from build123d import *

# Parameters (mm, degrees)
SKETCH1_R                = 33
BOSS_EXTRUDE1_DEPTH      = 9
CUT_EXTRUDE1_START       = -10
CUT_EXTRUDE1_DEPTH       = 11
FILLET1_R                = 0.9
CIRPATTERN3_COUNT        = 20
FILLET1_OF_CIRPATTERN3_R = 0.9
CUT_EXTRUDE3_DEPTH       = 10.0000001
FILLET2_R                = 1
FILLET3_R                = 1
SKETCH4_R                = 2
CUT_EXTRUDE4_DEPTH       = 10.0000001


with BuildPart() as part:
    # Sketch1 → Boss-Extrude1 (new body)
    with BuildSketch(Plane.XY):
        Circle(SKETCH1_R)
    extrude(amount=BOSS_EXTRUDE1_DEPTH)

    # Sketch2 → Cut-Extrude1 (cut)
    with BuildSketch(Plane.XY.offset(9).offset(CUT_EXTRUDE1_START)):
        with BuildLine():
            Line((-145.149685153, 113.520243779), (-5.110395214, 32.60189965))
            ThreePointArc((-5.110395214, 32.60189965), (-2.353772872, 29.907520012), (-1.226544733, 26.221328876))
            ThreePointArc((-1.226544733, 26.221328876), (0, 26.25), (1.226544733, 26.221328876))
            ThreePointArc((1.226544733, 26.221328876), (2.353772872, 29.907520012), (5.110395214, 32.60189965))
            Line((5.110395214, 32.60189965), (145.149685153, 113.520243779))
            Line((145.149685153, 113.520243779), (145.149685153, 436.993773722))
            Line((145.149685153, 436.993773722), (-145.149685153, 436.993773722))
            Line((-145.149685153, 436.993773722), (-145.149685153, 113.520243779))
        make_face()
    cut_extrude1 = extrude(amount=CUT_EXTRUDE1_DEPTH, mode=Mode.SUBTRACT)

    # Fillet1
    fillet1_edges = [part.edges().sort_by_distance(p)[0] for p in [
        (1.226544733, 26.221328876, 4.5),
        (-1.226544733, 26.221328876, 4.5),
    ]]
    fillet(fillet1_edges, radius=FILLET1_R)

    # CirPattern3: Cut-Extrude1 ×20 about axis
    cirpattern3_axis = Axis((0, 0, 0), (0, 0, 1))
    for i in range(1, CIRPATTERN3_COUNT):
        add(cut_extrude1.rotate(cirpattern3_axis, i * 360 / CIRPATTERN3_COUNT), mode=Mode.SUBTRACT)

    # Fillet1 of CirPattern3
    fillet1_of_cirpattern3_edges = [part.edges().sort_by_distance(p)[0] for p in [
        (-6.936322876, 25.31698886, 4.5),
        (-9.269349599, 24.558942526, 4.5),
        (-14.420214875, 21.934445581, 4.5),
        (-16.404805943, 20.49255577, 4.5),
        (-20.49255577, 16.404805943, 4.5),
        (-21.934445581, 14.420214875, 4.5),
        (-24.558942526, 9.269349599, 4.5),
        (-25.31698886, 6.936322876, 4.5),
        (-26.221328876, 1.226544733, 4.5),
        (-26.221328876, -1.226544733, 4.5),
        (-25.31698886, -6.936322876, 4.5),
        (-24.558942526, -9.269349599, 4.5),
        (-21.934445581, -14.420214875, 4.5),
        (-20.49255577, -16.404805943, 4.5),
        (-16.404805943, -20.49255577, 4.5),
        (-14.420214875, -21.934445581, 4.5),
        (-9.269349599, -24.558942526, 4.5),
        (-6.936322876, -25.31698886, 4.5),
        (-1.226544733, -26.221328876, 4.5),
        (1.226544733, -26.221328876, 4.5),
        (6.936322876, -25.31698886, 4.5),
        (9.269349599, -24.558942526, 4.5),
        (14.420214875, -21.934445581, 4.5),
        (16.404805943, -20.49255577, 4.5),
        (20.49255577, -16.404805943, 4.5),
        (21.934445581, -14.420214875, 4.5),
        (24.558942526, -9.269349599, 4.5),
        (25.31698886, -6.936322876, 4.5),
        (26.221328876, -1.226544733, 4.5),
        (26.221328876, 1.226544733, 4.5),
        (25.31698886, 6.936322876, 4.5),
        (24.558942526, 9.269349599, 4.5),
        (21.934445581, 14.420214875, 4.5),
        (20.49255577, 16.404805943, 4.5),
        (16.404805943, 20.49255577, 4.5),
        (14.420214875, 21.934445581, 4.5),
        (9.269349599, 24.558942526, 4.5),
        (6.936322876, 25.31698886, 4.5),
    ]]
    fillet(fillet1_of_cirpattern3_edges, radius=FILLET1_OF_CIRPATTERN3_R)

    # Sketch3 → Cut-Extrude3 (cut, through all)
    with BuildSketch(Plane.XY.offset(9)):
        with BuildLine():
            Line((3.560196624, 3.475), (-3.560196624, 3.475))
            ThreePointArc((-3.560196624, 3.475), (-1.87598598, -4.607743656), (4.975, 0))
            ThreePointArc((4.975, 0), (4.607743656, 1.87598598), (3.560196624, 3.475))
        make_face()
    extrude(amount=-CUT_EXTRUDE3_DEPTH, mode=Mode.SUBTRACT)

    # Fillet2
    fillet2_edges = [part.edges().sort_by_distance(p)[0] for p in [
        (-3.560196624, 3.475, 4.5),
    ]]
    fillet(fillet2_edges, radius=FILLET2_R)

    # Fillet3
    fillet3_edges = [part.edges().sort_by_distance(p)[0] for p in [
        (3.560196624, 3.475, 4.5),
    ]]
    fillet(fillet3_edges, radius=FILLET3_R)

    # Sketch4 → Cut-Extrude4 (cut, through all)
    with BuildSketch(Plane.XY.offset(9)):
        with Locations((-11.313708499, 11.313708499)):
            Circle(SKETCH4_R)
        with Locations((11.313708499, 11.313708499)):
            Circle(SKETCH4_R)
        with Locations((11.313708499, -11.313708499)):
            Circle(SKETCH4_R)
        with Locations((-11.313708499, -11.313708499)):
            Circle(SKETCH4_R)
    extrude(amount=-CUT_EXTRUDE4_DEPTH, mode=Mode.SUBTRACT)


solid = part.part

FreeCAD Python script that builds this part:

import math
import FreeCAD as App
import Part
import Sketcher

V = App.Vector
Q = App.Units.Quantity


def edges_at(feature, points):
    """Names of the edges that pass closest to the given points."""
    edges = feature.Shape.Edges
    near = lambda p: min(range(len(edges)), key=lambda i: edges[i].distToShape(Part.Vertex(*p))[0])
    return sorted({f"Edge{near(p) + 1}" for p in points})

doc = App.newDocument("Part")
body = doc.addObject("PartDesign::Body", "Body")

sketch1 = body.newObject("Sketcher::SketchObject", "Sketch")
sketch1.AttachmentSupport = (doc.getObject("XY_Plane"), [""])
sketch1.MapMode = "FlatFace"
sketch1.addGeometry(Part.Circle(V(0, 0, 0), V(0, 0, 1), 33), False)
sketch1.addConstraint([
    Sketcher.Constraint("Coincident", 0, 3, -1, 1),
    Sketcher.Constraint("Diameter", 0, Q("66 mm")),
])
pad1 = body.newObject("PartDesign::Pad", "Pad")
pad1.Profile = sketch1
pad1.Length = 9

sketch2 = body.newObject("Sketcher::SketchObject", "Sketch001")
sketch2.AttachmentSupport = (doc.getObject("XY_Plane"), [""])
sketch2.MapMode = "FlatFace"
sketch2.AttachmentOffset = App.Placement(V(0, 0, -1), App.Rotation())
sketch2.addGeometry([
    Part.LineSegment(V(-145.149685, 113.520244, 0), V(-5.110395, 32.6019, 0)),
    Part.ArcOfCircle(Part.Circle(V(-9.007566, 25.857359, 0), V(0, 0, 1), 7.789529), math.radians(2.67815), math.radians(59.979561)),
    Part.ArcOfCircle(Part.Circle(V(0, 0, 0), V(0, 0, 1), 26.25), math.radians(87.32185), math.radians(92.67815)),
    Part.ArcOfCircle(Part.Circle(V(9.007566, 25.857359, 0), V(0, 0, 1), 7.789529), math.radians(120.020439), math.radians(177.32185)),
    Part.LineSegment(V(5.110395, 32.6019, 0), V(145.149685, 113.520244, 0)),
    Part.LineSegment(V(145.149685, 113.520244, 0), V(145.149685, 436.993774, 0)),
    Part.LineSegment(V(145.149685, 436.993774, 0), V(-145.149685, 436.993774, 0)),
    Part.LineSegment(V(-145.149685, 436.993774, 0), V(-145.149685, 113.520244, 0)),
], False)
sketch2.addConstraint([
    Sketcher.Constraint("Coincident", 0, 2, 1, 2),
    Sketcher.Constraint("Coincident", 1, 1, 2, 2),
    Sketcher.Constraint("Coincident", 2, 1, 3, 2),
    Sketcher.Constraint("Coincident", 3, 1, 4, 1),
    Sketcher.Constraint("Coincident", 4, 2, 5, 1),
    Sketcher.Constraint("Coincident", 5, 2, 6, 1),
    Sketcher.Constraint("Coincident", 6, 2, 7, 1),
    Sketcher.Constraint("Coincident", 7, 2, 0, 1),
    Sketcher.Constraint("Vertical", 5),
    Sketcher.Constraint("Horizontal", 6),
    Sketcher.Constraint("Vertical", 7),
    Sketcher.Constraint("Coincident", 2, 3, -1, 1),
    Sketcher.Constraint("Radius", 2, Q("26.25 mm")),
    Sketcher.Constraint("Radius", 1, Q("7.789529 mm")),
    Sketcher.Constraint("Radius", 3, Q("7.789529 mm")),
    Sketcher.Constraint("DistanceX", 6, 2, 6, 1, Q("290.29937 mm")),
    Sketcher.Constraint("DistanceY", 5, 1, 5, 2, Q("323.47353 mm")),
    Sketcher.Constraint("DistanceY", 7, 2, 7, 1, Q("323.47353 mm")),
    Sketcher.Constraint("DistanceY", -1, 1, 0, 2, Q("32.6019 mm")),
    Sketcher.Constraint("DistanceY", -1, 1, 3, 1, Q("32.6019 mm")),
    Sketcher.Constraint("DistanceY", -1, 1, 1, 3, Q("25.857359 mm")),
    Sketcher.Constraint("DistanceY", -1, 1, 3, 3, Q("25.857359 mm")),
    Sketcher.Constraint("DistanceY", -1, 1, 1, 1, Q("26.221329 mm")),
    Sketcher.Constraint("DistanceY", -1, 1, 2, 1, Q("26.221329 mm")),
    Sketcher.Constraint("DistanceX", 3, 1, 4, 2, Q("140.03929 mm")),
    Sketcher.Constraint("Distance", 0, Q("161.736765 mm")),
])
pocket1 = body.newObject("PartDesign::Pocket", "Pocket")
pocket1.Profile = sketch2
pocket1.Length = 11
pocket1.Reversed = True
doc.recompute()

fillet = body.newObject("PartDesign::Fillet", "Fillet")
fillet.Base = (pocket1, edges_at(pocket1, [(1.227, 26.221, 4.5), (-1.227, 26.221, 4.5)]))
fillet.Radius = 0.9
doc.recompute()

polarpattern = body.newObject("PartDesign::PolarPattern", "PolarPattern")
polarpattern.Originals = [pocket1]
polarpattern.Axis = (doc.getObject("Z_Axis"), [""])
polarpattern.Angle = 360
polarpattern.Occurrences = 20
body.Tip = polarpattern
doc.recompute()

fillet2 = body.newObject("PartDesign::Fillet", "Fillet001")
fillet2.Base = (polarpattern, edges_at(polarpattern, [
    (-6.936, 25.317, 4.5),
    (-9.269, 24.559, 4.5),
    (-14.42, 21.934, 4.5),
    (-16.405, 20.493, 4.5),
    (-20.493, 16.405, 4.5),
    (-21.934, 14.42, 4.5),
    (-24.559, 9.269, 4.5),
    (-25.317, 6.936, 4.5),
    (-26.221, 1.227, 4.5),
    (-26.221, -1.227, 4.5),
    (-25.317, -6.936, 4.5),
    (-24.559, -9.269, 4.5),
    (-21.934, -14.42, 4.5),
    (-20.493, -16.405, 4.5),
    (-16.405, -20.493, 4.5),
    (-14.42, -21.934, 4.5),
    (-9.269, -24.559, 4.5),
    (-6.936, -25.317, 4.5),
    (-1.227, -26.221, 4.5),
    (1.227, -26.221, 4.5),
    (6.936, -25.317, 4.5),
    (9.269, -24.559, 4.5),
    (14.42, -21.934, 4.5),
    (16.405, -20.493, 4.5),
    (20.493, -16.405, 4.5),
    (21.934, -14.42, 4.5),
    (24.559, -9.269, 4.5),
    (25.317, -6.936, 4.5),
    (26.221, -1.227, 4.5),
    (26.221, 1.227, 4.5),
    (25.317, 6.936, 4.5),
    (24.559, 9.269, 4.5),
    (21.934, 14.42, 4.5),
    (20.493, 16.405, 4.5),
    (16.405, 20.493, 4.5),
    (14.42, 21.934, 4.5),
    (9.269, 24.559, 4.5),
    (6.936, 25.317, 4.5),
]))
fillet2.Radius = 0.9

sketch3 = body.newObject("Sketcher::SketchObject", "Sketch002")
sketch3.AttachmentSupport = (doc.getObject("XY_Plane"), [""])
sketch3.MapMode = "FlatFace"
sketch3.AttachmentOffset = App.Placement(V(0, 0, 9), App.Rotation())
sketch3.addGeometry([
    Part.LineSegment(V(3.6, 3.5, 0), V(-3.6, 3.5, 0)),
    Part.ArcOfCircle(Part.Circle(V(0, 0, 0), V(0, 0, 1), 5), math.radians(136), math.radians(360)),
    Part.ArcOfCircle(Part.Circle(V(0, 0, 0), V(0, 0, 1), 5), math.radians(0), math.radians(44)),
], False)
sketch3.addConstraint([
    Sketcher.Constraint("Coincident", 0, 2, 1, 1),
    Sketcher.Constraint("Tangent", 1, 2, 2, 1),
    Sketcher.Constraint("Coincident", 2, 2, 0, 1),
    Sketcher.Constraint("Horizontal", 0),
    Sketcher.Constraint("Coincident", 1, 3, -1, 1),
    Sketcher.Constraint("Equal", 1, 2),
    Sketcher.Constraint("PointOnObject", 1, 2, -1),
    Sketcher.Constraint("Radius", 1, Q("4.975 mm")),
    Sketcher.Constraint("DistanceY", -1, 1, 0, 2, Q("3.475 mm")),
])
pocket2 = body.newObject("PartDesign::Pocket", "Pocket001")
pocket2.Profile = sketch3
pocket2.Type = "ThroughAll"
doc.recompute()

fillet3 = body.newObject("PartDesign::Fillet", "Fillet002")
fillet3.Base = (pocket2, edges_at(pocket2, [(-3.56, 3.475, 4.5)]))
fillet3.Radius = 1
doc.recompute()

fillet4 = body.newObject("PartDesign::Fillet", "Fillet003")
fillet4.Base = (fillet3, edges_at(fillet3, [(3.56, 3.475, 4.5)]))
fillet4.Radius = 1

sketch4 = body.newObject("Sketcher::SketchObject", "Sketch003")
sketch4.AttachmentSupport = (doc.getObject("XY_Plane"), [""])
sketch4.MapMode = "FlatFace"
sketch4.AttachmentOffset = App.Placement(V(0, 0, 9), App.Rotation())
sketch4.addGeometry([
    Part.Circle(V(-11.3, 11.3, 0), V(0, 0, 1), 2),
    Part.Circle(V(11.3, 11.3, 0), V(0, 0, 1), 2),
    Part.Circle(V(11.3, -11.3, 0), V(0, 0, 1), 2),
    Part.Circle(V(-11.3, -11.3, 0), V(0, 0, 1), 2),
], False)
sketch4.addConstraint([
    Sketcher.Constraint("Equal", 0, 1),
    Sketcher.Constraint("Equal", 1, 2),
    Sketcher.Constraint("Equal", 2, 3),
    Sketcher.Constraint("Symmetric", 0, 3, 2, 3, -1, 1),
    Sketcher.Constraint("Symmetric", 1, 3, 3, 3, -1, 1),
    Sketcher.Constraint("Symmetric", 0, 3, 1, 3, -2),
    Sketcher.Constraint("Diameter", 0, Q("4 mm")),
    Sketcher.Constraint("DistanceX", 0, 3, -1, 1, Q("11.313708 mm")),
    Sketcher.Constraint("DistanceY", -1, 1, 0, 3, Q("11.313708 mm")),
])
pocket3 = body.newObject("PartDesign::Pocket", "Pocket002")
pocket3.Profile = sketch4
pocket3.Type = "ThroughAll"

doc.recompute()
